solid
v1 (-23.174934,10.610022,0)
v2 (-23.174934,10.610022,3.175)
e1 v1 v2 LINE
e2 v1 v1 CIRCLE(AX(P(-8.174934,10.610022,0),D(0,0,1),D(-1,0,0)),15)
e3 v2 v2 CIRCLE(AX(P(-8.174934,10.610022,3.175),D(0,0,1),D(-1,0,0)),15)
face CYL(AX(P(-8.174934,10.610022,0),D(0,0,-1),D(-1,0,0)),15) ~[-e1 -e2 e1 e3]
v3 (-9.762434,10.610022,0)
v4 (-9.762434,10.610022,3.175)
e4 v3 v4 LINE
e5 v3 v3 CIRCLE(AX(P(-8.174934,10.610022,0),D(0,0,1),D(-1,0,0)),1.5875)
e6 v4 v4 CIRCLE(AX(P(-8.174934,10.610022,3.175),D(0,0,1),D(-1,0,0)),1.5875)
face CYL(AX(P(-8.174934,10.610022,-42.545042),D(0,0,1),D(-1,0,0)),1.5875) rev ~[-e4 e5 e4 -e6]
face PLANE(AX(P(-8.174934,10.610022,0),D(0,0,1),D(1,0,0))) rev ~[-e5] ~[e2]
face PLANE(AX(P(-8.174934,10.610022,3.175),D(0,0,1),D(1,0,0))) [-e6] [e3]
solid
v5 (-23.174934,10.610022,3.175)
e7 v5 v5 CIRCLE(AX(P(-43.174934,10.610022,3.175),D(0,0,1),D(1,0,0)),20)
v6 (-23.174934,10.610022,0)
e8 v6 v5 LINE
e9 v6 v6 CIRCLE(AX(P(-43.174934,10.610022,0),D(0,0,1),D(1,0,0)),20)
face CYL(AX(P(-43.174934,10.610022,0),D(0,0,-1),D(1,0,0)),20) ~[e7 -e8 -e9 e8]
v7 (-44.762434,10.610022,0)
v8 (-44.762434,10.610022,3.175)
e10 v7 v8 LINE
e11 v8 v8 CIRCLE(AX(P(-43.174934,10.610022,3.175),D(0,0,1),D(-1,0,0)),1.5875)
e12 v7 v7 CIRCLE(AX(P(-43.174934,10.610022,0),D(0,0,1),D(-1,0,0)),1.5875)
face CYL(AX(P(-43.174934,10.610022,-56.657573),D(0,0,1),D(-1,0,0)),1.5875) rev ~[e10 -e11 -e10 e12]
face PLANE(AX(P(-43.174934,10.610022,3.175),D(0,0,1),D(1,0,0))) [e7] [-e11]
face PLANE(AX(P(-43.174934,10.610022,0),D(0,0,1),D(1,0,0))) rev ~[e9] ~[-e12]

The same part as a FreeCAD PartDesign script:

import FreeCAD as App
import Part
import Sketcher
Q = App.Units.Quantity

doc = App.newDocument("Part")
body = doc.addObject("PartDesign::Body", "Body")

sketch1 = body.newObject("Sketcher::SketchObject", "Sketch")
sketch1.AttachmentSupport = (doc.getObject("XY_Plane"), [""])
sketch1.MapMode = "FlatFace"
sketch1.addGeometry(Part.Circle(App.Vector(-43, 11, 0), App.Vector(0, 0, 1), 20), False)
sketch1.addConstraint([
    Sketcher.Constraint("Diameter", 0, Q("40 mm")),
    Sketcher.Constraint("DistanceY", -1, 1, 0, 3, Q("10.610022 mm")),
    Sketcher.Constraint("DistanceX", 0, 3, -1, 1, Q("43.174934 mm")),
])
pad1 = body.newObject("PartDesign::Pad", "Pad")
pad1.Profile = sketch1
pad1.Length = 3.175

sketch2 = body.newObject("Sketcher::SketchObject", "Sketch001")
sketch2.AttachmentSupport = (doc.getObject("XY_Plane"), [""])
sketch2.MapMode = "FlatFace"
sketch2.addGeometry([
    Part.Circle(App.Vector(-43.2, 10.6, 0), App.Vector(0, 0, 1), 1.6),
    Part.Circle(App.Vector(-8.2, 10.6, 0), App.Vector(0, 0, 1), 1.6),
], False)
sketch2.addConstraint([
    Sketcher.Constraint("Equal", 0, 1),
    Sketcher.Constraint("Horizontal", 0, 3, 1, 3),
    Sketcher.Constraint("Diameter", 0, Q("3.175 mm")),
    Sketcher.Constraint("DistanceX", 0, 3, 1, 3, Q("35 mm")),
    Sketcher.Constraint("DistanceY", -1, 1, 0, 3, Q("10.610022 mm")),
    Sketcher.Constraint("DistanceX", 0, 3, -1, 1, Q("43.174934 mm")),
])
doc.recompute()
hole = body.newObject("PartDesign::Hole", "Hole")
hole.Profile = sketch2
hole.ThreadType = "None"
hole.Diameter = 3.175
hole.DepthType = "ThroughAll"
hole.Reversed = True
body2 = doc.addObject("PartDesign::Body", "Body001")

sketch3 = body2.newObject("Sketcher::SketchObject", "Sketch002")
sketch3.AttachmentSupport = (doc.getObject("XY_Plane001"), [""])
sketch3.MapMode = "FlatFace"
sketch3.addGeometry(Part.Circle(App.Vector(-8, 11, 0), App.Vector(0, 0, 1), 15), False)
sketch3.addConstraint([
    Sketcher.Constraint("Diameter", 0, Q("30 mm")),
    Sketcher.Constraint("DistanceY", -1, 1, 0, 3, Q("10.610022 mm")),
    Sketcher.Constraint("DistanceX", 0, 3, -1, 1, Q("8.174934 mm")),
])
pad2 = body2.newObject("PartDesign::Pad", "Pad001")
pad2.Profile = sketch3
pad2.Length = 3.175

sketch4 = body2.newObject("Sketcher::SketchObject", "Sketch003")
sketch4.AttachmentSupport = (doc.getObject("XY_Plane001"), [""])
sketch4.MapMode = "FlatFace"
sketch4.addGeometry([
    Part.Circle(App.Vector(-43.2, 10.6, 0), App.Vector(0, 0, 1), 1.6),
    Part.Circle(App.Vector(-8.2, 10.6, 0), App.Vector(0, 0, 1), 1.6),
], False)
sketch4.addConstraint([
    Sketcher.Constraint("Equal", 0, 1),
    Sketcher.Constraint("Horizontal", 0, 3, 1, 3),
    Sketcher.Constraint("Diameter", 0, Q("3.175 mm")),
    Sketcher.Constraint("DistanceX", 0, 3, 1, 3, Q("35 mm")),
    Sketcher.Constraint("DistanceY", -1, 1, 0, 3, Q("10.610022 mm")),
    Sketcher.Constraint("DistanceX", 0, 3, -1, 1, Q("43.174934 mm")),
])
doc.recompute()
hole2 = body2.newObject("PartDesign::Hole", "Hole001")
hole2.Profile = sketch4
hole2.ThreadType = "None"
hole2.Diameter = 3.175
hole2.DepthType = "ThroughAll"
hole2.Reversed = True

doc.recompute()
